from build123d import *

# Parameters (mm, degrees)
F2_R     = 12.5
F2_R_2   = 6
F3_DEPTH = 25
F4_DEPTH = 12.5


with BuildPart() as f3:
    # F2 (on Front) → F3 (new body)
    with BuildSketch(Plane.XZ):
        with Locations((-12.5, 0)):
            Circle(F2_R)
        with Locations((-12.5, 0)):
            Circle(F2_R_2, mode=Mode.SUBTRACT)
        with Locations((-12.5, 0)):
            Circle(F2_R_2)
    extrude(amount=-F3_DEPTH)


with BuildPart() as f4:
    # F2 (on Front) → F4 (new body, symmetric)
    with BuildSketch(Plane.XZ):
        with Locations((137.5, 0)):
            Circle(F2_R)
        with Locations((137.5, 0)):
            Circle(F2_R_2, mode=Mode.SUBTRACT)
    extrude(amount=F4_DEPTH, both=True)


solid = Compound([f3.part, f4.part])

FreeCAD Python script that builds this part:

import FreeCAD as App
import Part
import Sketcher

V = App.Vector
Q = App.Units.Quantity

doc = App.newDocument("Part")
body = doc.addObject("PartDesign::Body", "Body")

# Sketch on XZ plane
sketch1 = body.newObject("Sketcher::SketchObject", "Sketch")
sketch1.AttachmentSupport = (doc.getObject("XZ_Plane"), [""])
sketch1.MapMode = "FlatFace"
sketch1.addGeometry(Part.Circle(V(-12.5, 0, 0), V(0, 0, 1), 12.5), False)
sketch1.addConstraint(Sketcher.Constraint("PointOnObject", 0, 3, -1))
sketch1.addConstraint(Sketcher.Constraint("Diameter", 0, Q("25 mm")))
sketch1.addConstraint(Sketcher.Constraint("DistanceX", 0, 3, -1, 1, Q("12.5 mm")))
pad1 = body.newObject("PartDesign::Pad", "Pad")
pad1.Profile = sketch1
pad1.Length = 25
pad1.Reversed = True
body2 = doc.addObject("PartDesign::Body", "Body001")

# Sketch on XZ plane
sketch2 = body2.newObject("Sketcher::SketchObject", "Sketch001")
sketch2.AttachmentSupport = (doc.getObject("XZ_Plane001"), [""])
sketch2.MapMode = "FlatFace"
sketch2.addGeometry(Part.Circle(V(137.5, 0, 0), V(0, 0, 1), 12.5), False)
sketch2.addGeometry(Part.Circle(V(137.5, 0, 0), V(0, 0, 1), 6), False)
sketch2.addConstraint(Sketcher.Constraint("Coincident", 1, 3, 0, 3))
sketch2.addConstraint(Sketcher.Constraint("PointOnObject", 0, 3, -1))
sketch2.addConstraint(Sketcher.Constraint("Diameter", 0, Q("25 mm")))
sketch2.addConstraint(Sketcher.Constraint("Diameter", 1, Q("12 mm")))
sketch2.addConstraint(Sketcher.Constraint("DistanceX", -1, 1, 0, 3, Q("137.5 mm")))
pad2 = body2.newObject("PartDesign::Pad", "Pad001")
pad2.Profile = sketch2
pad2.Length = 25
pad2.Midplane = True

doc.recompute()
